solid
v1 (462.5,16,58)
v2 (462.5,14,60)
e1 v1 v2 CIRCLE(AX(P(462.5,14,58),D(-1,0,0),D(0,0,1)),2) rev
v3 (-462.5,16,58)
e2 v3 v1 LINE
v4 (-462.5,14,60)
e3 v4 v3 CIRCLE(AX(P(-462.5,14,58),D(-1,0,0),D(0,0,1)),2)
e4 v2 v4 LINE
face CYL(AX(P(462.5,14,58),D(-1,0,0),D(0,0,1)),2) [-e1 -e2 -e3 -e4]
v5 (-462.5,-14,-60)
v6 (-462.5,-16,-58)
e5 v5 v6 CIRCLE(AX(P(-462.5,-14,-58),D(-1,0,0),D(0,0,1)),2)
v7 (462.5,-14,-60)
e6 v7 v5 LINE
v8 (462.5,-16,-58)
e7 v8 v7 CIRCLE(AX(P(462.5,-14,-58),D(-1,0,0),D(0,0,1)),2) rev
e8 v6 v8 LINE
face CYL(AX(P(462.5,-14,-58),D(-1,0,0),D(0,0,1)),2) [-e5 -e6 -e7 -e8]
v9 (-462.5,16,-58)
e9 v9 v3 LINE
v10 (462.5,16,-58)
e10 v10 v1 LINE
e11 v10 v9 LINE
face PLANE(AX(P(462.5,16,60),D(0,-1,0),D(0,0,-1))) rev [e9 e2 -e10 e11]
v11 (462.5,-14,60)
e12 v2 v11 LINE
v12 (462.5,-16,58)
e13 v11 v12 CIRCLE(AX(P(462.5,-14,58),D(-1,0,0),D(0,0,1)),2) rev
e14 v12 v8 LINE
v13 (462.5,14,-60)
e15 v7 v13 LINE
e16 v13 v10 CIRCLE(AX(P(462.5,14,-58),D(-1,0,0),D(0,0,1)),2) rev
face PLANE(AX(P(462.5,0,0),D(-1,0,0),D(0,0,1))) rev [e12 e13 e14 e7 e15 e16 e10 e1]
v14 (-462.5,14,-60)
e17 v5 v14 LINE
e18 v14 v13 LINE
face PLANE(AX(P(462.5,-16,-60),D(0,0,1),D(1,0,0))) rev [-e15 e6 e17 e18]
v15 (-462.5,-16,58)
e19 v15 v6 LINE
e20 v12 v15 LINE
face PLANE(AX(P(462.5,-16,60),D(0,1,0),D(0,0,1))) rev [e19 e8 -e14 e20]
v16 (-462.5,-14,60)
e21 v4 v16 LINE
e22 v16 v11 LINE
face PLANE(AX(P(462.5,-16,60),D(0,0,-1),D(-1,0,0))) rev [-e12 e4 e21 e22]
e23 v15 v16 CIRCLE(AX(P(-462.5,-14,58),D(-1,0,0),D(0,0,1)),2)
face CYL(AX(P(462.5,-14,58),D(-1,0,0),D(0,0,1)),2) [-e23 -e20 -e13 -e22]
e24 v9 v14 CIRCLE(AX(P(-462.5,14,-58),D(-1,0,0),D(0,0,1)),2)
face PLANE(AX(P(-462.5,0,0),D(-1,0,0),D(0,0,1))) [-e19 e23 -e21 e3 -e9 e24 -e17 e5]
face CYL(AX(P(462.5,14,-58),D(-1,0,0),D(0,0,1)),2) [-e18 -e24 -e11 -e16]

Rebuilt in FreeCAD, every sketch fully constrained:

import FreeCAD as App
import Part
import Sketcher
from FreeCAD import Vector
Q = App.Units.Quantity


def edges_at(feature, points):
    """Names of the edges that pass closest to the given points."""
    edges = feature.Shape.Edges
    near = lambda p: min(range(len(edges)), key=lambda i: edges[i].distToShape(Part.Vertex(*p))[0])
    return sorted({f"Edge{near(p) + 1}" for p in points})


def add_polygon(sketch, points):
    """Adds a closed chain of lines whose ends are joined by coincident constraints."""
    first, n = sketch.GeometryCount, len(points)
    for a, b in zip(points, points[1:] + points[:1]):
        sketch.addGeometry(Part.LineSegment(App.Vector(*a, 0), App.Vector(*b, 0)), False)
    for i in range(n):
        sketch.addConstraint(Sketcher.Constraint("Coincident", first + i, 2, first + (i + 1) % n, 1))

doc = App.newDocument("Part")
body = doc.addObject("PartDesign::Body", "Body")

# Sketch on YZ plane
sketch1 = body.newObject("Sketcher::SketchObject", "Sketch")
sketch1.AttachmentSupport = (doc.getObject("YZ_Plane"), [""])
sketch1.MapMode = "FlatFace"
add_polygon(sketch1, [(16, 60), (-16, 60), (-16, -60), (16, -60)])  # lines 0-3
sketch1.addConstraint([
    Sketcher.Constraint("Horizontal", 0),
    Sketcher.Constraint("Vertical", 1),
    Sketcher.Constraint("Horizontal", 2),
    Sketcher.Constraint("Vertical", 3),
    Sketcher.Constraint("Symmetric", 0, 2, 2, 2, -1, 1),
    Sketcher.Constraint("DistanceX", 0, 2, 0, 1, Q("32 mm")),
    Sketcher.Constraint("DistanceY", 1, 2, 1, 1, Q("120 mm")),
])
pad1 = body.newObject("PartDesign::Pad", "Pad")
pad1.Profile = sketch1
pad1.Length = 925
pad1.Midplane = True
doc.recompute()

fillet = body.newObject("PartDesign::Fillet", "Fillet")
fillet.Base = (pad1, edges_at(pad1, [
    (0, -16, -60),
    (0, -16, 60),
    (0, 16, 60),
    (0, 16, -60),
]))
fillet.Radius = 2

doc.recompute()
